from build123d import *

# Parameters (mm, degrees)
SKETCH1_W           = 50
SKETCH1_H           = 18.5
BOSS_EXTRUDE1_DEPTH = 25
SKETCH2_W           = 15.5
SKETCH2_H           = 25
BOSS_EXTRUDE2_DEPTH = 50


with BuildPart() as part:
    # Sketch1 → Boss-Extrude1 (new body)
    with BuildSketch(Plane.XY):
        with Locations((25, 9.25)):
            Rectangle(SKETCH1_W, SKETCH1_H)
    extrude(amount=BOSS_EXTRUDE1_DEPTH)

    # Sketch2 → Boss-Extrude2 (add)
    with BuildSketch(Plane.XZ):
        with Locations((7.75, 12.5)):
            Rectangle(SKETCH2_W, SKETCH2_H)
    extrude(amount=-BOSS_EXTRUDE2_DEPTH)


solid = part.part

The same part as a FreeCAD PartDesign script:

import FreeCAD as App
import Part
import Sketcher

V = App.Vector


def add_polygon(sketch, points):
    """Adds a closed chain of lines whose ends are joined by coincident constraints."""
    first, n = sketch.GeometryCount, len(points)
    for a, b in zip(points, points[1:] + points[:1]):
        sketch.addGeometry(Part.LineSegment(App.Vector(*a, 0), App.Vector(*b, 0)), False)
    for i in range(n):
        sketch.addConstraint(Sketcher.Constraint("Coincident", first + i, 2, first + (i + 1) % n, 1))

doc = App.newDocument("Part")
params = doc.addObject("Spreadsheet::Sheet", "Params")
for row, (alias, value) in enumerate([
    ("sketch1_width", "50 mm"),
    ("sketch1_height", "18.5 mm"),
    ("pad1_length", "25 mm"),
    ("sketch2_height", "25 mm"),
    ("sketch2_width", "15.5 mm"),
    ("pad2_length", "50 mm"),
], start=1):
    params.set(f"A{row}", alias)
    params.set(f"B{row}", "=" + value)
    params.setAlias(f"B{row}", alias)

body = doc.addObject("PartDesign::Body", "Body")

sketch1 = body.newObject("Sketcher::SketchObject", "Sketch")
sketch1.AttachmentSupport = (doc.getObject("XY_Plane"), [""])
sketch1.MapMode = "FlatFace"
add_polygon(sketch1, [(0, 18), (0, 0), (50, 0), (50, 18)])
sketch1.addConstraint([
    Sketcher.Constraint("Vertical", 0),
    Sketcher.Constraint("Horizontal", 1),
    Sketcher.Constraint("Vertical", 2),
    Sketcher.Constraint("Horizontal", 3),
    Sketcher.Constraint("Coincident", 0, 2, -1, 1),
    Sketcher.Constraint("DistanceX", 1, 1, 1, 2, 50.0),
    Sketcher.Constraint("DistanceY", 0, 2, 0, 1, 18.5),
])
sketch1.setExpression("Constraints[9]", "Params.sketch1_width")
sketch1.setExpression("Constraints[10]", "Params.sketch1_height")
pad1 = body.newObject("PartDesign::Pad", "Pad")
pad1.Profile = sketch1
pad1.setExpression("Length", "Params.pad1_length")

sketch2 = body.newObject("Sketcher::SketchObject", "Sketch001")
sketch2.AttachmentSupport = (doc.getObject("XZ_Plane"), [""])
sketch2.MapMode = "FlatFace"
add_polygon(sketch2, [(0, 25), (0, 0), (16, 0), (16, 25)])
sketch2.addConstraint([
    Sketcher.Constraint("Vertical", 0),
    Sketcher.Constraint("Horizontal", 1),
    Sketcher.Constraint("Vertical", 2),
    Sketcher.Constraint("Horizontal", 3),
    Sketcher.Constraint("Coincident", 0, 2, -1, 1),
    Sketcher.Constraint("DistanceY", 0, 2, 0, 1, 25.0),
    Sketcher.Constraint("DistanceX", 1, 1, 1, 2, 15.5),
])
sketch2.setExpression("Constraints[9]", "Params.sketch2_height")
sketch2.setExpression("Constraints[10]", "Params.sketch2_width")
pad2 = body.newObject("PartDesign::Pad", "Pad001")
pad2.Profile = sketch2
pad2.setExpression("Length", "Params.pad2_length")
pad2.Reversed = True

doc.recompute()
